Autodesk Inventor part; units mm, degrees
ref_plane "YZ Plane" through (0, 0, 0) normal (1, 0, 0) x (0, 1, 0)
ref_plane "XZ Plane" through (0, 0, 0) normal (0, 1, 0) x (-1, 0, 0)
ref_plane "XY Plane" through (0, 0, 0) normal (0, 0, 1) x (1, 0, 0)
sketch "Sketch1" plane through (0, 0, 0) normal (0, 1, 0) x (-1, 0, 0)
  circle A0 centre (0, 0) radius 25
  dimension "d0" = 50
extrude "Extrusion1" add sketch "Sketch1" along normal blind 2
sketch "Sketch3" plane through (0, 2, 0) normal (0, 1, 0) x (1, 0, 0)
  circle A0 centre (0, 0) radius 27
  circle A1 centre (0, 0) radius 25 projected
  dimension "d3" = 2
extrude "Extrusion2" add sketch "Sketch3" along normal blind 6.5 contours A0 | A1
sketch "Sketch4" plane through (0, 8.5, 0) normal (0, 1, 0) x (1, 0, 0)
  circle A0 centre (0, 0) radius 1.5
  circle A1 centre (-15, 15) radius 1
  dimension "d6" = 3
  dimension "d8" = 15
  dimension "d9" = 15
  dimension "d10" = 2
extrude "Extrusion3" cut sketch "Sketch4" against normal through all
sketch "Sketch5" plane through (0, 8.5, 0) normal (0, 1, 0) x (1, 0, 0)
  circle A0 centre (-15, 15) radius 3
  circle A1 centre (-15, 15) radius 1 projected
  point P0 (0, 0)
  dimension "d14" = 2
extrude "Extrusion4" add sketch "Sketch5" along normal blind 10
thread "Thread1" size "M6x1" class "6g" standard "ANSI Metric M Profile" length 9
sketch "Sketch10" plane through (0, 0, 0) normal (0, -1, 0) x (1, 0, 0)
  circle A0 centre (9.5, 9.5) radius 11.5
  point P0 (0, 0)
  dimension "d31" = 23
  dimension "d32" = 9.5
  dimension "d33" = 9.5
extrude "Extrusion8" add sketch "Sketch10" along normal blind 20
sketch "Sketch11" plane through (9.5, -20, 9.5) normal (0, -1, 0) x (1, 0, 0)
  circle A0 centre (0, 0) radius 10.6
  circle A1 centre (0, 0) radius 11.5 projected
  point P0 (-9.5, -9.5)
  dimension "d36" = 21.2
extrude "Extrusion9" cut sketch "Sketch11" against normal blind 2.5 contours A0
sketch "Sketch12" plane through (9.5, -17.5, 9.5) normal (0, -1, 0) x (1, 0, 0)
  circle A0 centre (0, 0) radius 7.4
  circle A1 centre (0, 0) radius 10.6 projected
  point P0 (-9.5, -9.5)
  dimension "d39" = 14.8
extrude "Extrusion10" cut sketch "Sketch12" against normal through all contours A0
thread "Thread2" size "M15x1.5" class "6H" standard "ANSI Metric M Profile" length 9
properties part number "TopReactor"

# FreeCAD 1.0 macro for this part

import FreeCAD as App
import Part
import Sketcher
from FreeCAD import Vector

doc = App.newDocument("Part")
body = doc.addObject("PartDesign::Body", "Body")

# Sketch on XZ plane
sketch1 = doc.addObject("Sketcher::SketchObject", "Sketch")
body.addObject(sketch1)
sketch1.AttachmentSupport = (doc.XZ_Plane, [""])
sketch1.MapMode = "FlatFace"
sketch1.addGeometry(Part.Circle(Vector(0, 0, 0), Vector(0, 0, 1), 25), False)
sketch1.addConstraint([
    Sketcher.Constraint("Coincident", 0, 3, -1, 1),
    Sketcher.Constraint("Diameter", 0, 50.0),
])
pad1 = doc.addObject("PartDesign::Pad", "Pad")
body.addObject(pad1)
pad1.Profile = sketch1
pad1.Length = 2
pad1.Reversed = True

# Sketch on XZ plane
sketch2 = doc.addObject("Sketcher::SketchObject", "Sketch001")
body.addObject(sketch2)
sketch2.AttachmentSupport = (doc.XZ_Plane, [""])
sketch2.MapMode = "FlatFace"
sketch2.AttachmentOffset = App.Placement(Vector(0, 0, -2), App.Rotation())
sketch2.addGeometry(Part.Circle(Vector(0, 0, 0), Vector(0, 0, 1), 27), False)
sketch2.addConstraint([
    Sketcher.Constraint("Coincident", 0, 3, -1, 1),
    Sketcher.Constraint("Diameter", 0, 54.0),
])
pad2 = doc.addObject("PartDesign::Pad", "Pad001")
body.addObject(pad2)
pad2.Profile = sketch2
pad2.Length = 6.5
pad2.Reversed = True

# Sketch on XZ plane
sketch3 = doc.addObject("Sketcher::SketchObject", "Sketch002")
body.addObject(sketch3)
sketch3.AttachmentSupport = (doc.XZ_Plane, [""])
sketch3.MapMode = "FlatFace"
sketch3.AttachmentOffset = App.Placement(Vector(0, 0, -8.5), App.Rotation())
sketch3.addGeometry([
    Part.Circle(Vector(0, 0, 0), Vector(0, 0, 1), 1.5),
    Part.Circle(Vector(-15, -15, 0), Vector(0, 0, 1), 1),
], False)
sketch3.addConstraint([
    Sketcher.Constraint("Coincident", 0, 3, -1, 1),
    Sketcher.Constraint("Diameter", 0, 3.0),
    Sketcher.Constraint("Diameter", 1, 2.0),
    Sketcher.Constraint("DistanceX", 1, 3, -1, 1, 15.0),
    Sketcher.Constraint("DistanceY", 1, 3, -1, 1, 15.0),
])
pocket1 = doc.addObject("PartDesign::Pocket", "Pocket")
body.addObject(pocket1)
pocket1.Profile = sketch3
pocket1.Type = "ThroughAll"
pocket1.Reversed = True

# Sketch on XZ plane
sketch4 = doc.addObject("Sketcher::SketchObject", "Sketch003")
body.addObject(sketch4)
sketch4.AttachmentSupport = (doc.XZ_Plane, [""])
sketch4.MapMode = "FlatFace"
sketch4.AttachmentOffset = App.Placement(Vector(0, 0, -8.5), App.Rotation())
sketch4.addGeometry([
    Part.Circle(Vector(-15, -15, 0), Vector(0, 0, 1), 3),
    Part.Circle(Vector(-15, -15, 0), Vector(0, 0, 1), 1),
], False)
sketch4.addConstraint([
    Sketcher.Constraint("Coincident", 1, 3, 0, 3),
    Sketcher.Constraint("Diameter", 1, 2.0),
    Sketcher.Constraint("Diameter", 0, 6.0),
    Sketcher.Constraint("DistanceX", 0, 3, -1, 1, 15.0),
    Sketcher.Constraint("DistanceY", 0, 3, -1, 1, 15.0),
])
pad3 = doc.addObject("PartDesign::Pad", "Pad002")
body.addObject(pad3)
pad3.Profile = sketch4
pad3.Length = 10
pad3.Reversed = True

# Sketch on XZ plane
sketch5 = doc.addObject("Sketcher::SketchObject", "Sketch004")
body.addObject(sketch5)
sketch5.AttachmentSupport = (doc.XZ_Plane, [""])
sketch5.MapMode = "FlatFace"
sketch5.addGeometry(Part.Circle(Vector(10, 10, 0), Vector(0, 0, 1), 12), False)
sketch5.addConstraint([
    Sketcher.Constraint("Diameter", 0, 23.0),
    Sketcher.Constraint("DistanceX", -1, 1, 0, 3, 9.5),
    Sketcher.Constraint("DistanceY", -1, 1, 0, 3, 9.5),
])
pad4 = doc.addObject("PartDesign::Pad", "Pad003")
body.addObject(pad4)
pad4.Profile = sketch5
pad4.Length = 20

# Sketch on XZ plane
sketch6 = doc.addObject("Sketcher::SketchObject", "Sketch005")
body.addObject(sketch6)
sketch6.AttachmentSupport = (doc.XZ_Plane, [""])
sketch6.MapMode = "FlatFace"
sketch6.AttachmentOffset = App.Placement(Vector(0, 0, 20), App.Rotation())
sketch6.addGeometry(Part.Circle(Vector(10, 10, 0), Vector(0, 0, 1), 11), False)
sketch6.addConstraint([
    Sketcher.Constraint("Diameter", 0, 21.2),
    Sketcher.Constraint("DistanceX", -1, 1, 0, 3, 9.5),
    Sketcher.Constraint("DistanceY", -1, 1, 0, 3, 9.5),
])
pocket2 = doc.addObject("PartDesign::Pocket", "Pocket001")
body.addObject(pocket2)
pocket2.Profile = sketch6
pocket2.Length = 2.5

# Sketch on XZ plane
sketch7 = doc.addObject("Sketcher::SketchObject", "Sketch006")
body.addObject(sketch7)
sketch7.AttachmentSupport = (doc.XZ_Plane, [""])
sketch7.MapMode = "FlatFace"
sketch7.AttachmentOffset = App.Placement(Vector(0, 0, 17.5), App.Rotation())
sketch7.addGeometry(Part.Circle(Vector(10, 10, 0), Vector(0, 0, 1), 7), False)
sketch7.addConstraint([
    Sketcher.Constraint("Diameter", 0, 14.8),
    Sketcher.Constraint("DistanceX", -1, 1, 0, 3, 9.5),
    Sketcher.Constraint("DistanceY", -1, 1, 0, 3, 9.5),
])
pocket3 = doc.addObject("PartDesign::Pocket", "Pocket002")
body.addObject(pocket3)
pocket3.Profile = sketch7
pocket3.Type = "ThroughAll"

doc.recompute()
